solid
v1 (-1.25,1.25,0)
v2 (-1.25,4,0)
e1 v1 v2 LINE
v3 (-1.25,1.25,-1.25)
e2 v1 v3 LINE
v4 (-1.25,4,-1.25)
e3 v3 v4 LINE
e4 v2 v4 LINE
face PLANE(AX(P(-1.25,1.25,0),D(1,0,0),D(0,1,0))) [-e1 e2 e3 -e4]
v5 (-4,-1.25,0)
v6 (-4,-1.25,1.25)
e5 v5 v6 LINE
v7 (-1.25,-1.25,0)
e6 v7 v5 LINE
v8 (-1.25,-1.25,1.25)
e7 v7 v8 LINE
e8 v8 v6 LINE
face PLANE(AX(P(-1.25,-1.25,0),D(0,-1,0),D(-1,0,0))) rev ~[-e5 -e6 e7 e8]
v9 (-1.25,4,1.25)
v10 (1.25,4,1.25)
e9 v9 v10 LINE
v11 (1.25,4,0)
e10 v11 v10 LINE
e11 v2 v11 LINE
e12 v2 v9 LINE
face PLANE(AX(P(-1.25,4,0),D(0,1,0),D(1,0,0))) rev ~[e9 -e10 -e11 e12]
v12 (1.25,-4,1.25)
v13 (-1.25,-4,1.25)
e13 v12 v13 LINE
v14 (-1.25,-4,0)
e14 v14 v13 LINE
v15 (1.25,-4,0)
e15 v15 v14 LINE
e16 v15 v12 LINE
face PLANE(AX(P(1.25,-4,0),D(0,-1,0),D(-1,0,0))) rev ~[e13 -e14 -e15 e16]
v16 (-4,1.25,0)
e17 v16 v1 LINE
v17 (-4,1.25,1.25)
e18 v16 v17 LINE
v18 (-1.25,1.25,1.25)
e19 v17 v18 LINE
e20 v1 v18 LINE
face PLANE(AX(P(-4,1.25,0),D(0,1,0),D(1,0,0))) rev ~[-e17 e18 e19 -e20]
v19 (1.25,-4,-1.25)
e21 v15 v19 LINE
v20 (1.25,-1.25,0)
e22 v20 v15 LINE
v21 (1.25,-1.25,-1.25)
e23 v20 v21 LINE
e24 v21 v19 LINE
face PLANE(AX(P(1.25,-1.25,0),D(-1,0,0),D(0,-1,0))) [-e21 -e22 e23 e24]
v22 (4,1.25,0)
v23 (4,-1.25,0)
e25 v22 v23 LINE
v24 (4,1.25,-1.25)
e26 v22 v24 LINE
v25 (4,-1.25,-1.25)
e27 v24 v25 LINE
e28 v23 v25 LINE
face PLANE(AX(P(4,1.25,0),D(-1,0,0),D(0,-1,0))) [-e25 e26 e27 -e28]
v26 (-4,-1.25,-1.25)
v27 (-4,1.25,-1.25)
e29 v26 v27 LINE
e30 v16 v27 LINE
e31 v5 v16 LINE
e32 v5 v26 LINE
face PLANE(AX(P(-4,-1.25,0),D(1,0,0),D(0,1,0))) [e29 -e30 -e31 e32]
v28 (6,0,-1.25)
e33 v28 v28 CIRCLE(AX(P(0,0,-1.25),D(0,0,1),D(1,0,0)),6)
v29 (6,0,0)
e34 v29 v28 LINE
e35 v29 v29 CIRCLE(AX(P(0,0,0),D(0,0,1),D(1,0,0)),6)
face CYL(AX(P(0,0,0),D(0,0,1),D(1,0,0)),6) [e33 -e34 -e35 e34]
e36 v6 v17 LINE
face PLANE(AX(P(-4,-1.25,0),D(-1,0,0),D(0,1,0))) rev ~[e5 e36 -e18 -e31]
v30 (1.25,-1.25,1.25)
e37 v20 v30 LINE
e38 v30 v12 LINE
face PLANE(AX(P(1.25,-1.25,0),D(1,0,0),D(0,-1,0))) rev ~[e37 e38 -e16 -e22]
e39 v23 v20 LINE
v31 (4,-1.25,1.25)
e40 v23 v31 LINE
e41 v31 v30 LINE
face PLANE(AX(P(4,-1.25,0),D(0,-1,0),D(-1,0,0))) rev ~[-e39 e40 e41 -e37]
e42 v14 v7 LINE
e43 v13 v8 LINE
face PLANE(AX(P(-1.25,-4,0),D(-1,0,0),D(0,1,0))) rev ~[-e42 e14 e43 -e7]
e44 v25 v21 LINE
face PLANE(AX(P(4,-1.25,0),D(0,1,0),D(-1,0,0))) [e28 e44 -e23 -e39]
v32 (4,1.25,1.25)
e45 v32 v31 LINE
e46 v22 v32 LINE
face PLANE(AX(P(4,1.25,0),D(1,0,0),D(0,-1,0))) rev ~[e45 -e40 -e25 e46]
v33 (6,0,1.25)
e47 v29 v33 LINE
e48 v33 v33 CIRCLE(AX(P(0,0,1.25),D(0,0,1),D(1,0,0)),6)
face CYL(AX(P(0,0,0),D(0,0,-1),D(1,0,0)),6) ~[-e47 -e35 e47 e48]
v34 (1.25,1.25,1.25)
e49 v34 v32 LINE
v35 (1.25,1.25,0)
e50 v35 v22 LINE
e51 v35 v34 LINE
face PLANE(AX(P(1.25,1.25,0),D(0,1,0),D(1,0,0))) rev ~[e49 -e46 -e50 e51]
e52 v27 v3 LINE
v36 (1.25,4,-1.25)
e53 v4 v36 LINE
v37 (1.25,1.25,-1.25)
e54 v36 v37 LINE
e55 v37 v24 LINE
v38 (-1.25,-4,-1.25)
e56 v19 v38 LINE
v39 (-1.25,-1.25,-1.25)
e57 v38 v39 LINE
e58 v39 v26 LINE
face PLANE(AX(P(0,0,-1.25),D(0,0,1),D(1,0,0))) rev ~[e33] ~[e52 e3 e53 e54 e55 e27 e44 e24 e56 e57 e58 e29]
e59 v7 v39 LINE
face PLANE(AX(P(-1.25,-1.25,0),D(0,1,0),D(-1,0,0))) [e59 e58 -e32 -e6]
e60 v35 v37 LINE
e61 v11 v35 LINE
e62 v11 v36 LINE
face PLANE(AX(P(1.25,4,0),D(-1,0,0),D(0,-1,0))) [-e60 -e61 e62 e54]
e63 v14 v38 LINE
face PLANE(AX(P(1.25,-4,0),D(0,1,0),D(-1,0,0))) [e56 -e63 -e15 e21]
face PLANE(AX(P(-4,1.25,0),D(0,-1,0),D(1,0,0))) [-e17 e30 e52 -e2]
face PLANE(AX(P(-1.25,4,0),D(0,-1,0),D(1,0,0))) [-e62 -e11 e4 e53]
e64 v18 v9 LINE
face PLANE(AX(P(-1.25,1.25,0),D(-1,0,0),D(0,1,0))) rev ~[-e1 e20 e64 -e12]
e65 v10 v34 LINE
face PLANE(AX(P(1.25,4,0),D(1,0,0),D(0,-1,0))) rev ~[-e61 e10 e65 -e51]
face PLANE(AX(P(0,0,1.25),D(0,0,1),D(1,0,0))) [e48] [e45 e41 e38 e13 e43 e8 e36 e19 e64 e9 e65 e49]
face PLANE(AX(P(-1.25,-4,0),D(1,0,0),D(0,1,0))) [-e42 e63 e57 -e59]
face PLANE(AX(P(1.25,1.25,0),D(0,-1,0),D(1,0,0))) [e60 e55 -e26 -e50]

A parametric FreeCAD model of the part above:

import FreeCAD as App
import Part
import Sketcher
from FreeCAD import Vector
Q = App.Units.Quantity

doc = App.newDocument("Part")
params = doc.addObject("Spreadsheet::Sheet", "Params")
for row, (alias, value) in enumerate([
    ("sketch1_diameter", "12 mm"),
    ("sketch1_width", "2.5 mm"),
    ("pad1_length", "2.5 mm"),
], start=1):
    params.set(f"A{row}", alias)
    params.set(f"B{row}", "=" + value)
    params.setAlias(f"B{row}", alias)

body = doc.addObject("PartDesign::Body", "Body")

sketch1 = doc.addObject("Sketcher::SketchObject", "Sketch")
body.addObject(sketch1)
sketch1.AttachmentSupport = (doc.XY_Plane, [""])
sketch1.MapMode = "FlatFace"
sketch1.addGeometry([
    Part.Circle(Vector(0, 0, 0), Vector(0, 0, 1), 6),
    Part.LineSegment(Vector(-1.2, 1.2, 0), Vector(-1.2, 4, 0)),
    Part.LineSegment(Vector(-1.2, 4, 0), Vector(1.2, 4, 0)),
    Part.LineSegment(Vector(1.2, 4, 0), Vector(1.2, 1.2, 0)),
    Part.LineSegment(Vector(1.2, 1.2, 0), Vector(4, 1.2, 0)),
    Part.LineSegment(Vector(4, 1.2, 0), Vector(4, -1.2, 0)),
    Part.LineSegment(Vector(4, -1.2, 0), Vector(1.2, -1.2, 0)),
    Part.LineSegment(Vector(1.2, -1.2, 0), Vector(1.2, -4, 0)),
    Part.LineSegment(Vector(1.2, -4, 0), Vector(-1.2, -4, 0)),
    Part.LineSegment(Vector(-1.2, -4, 0), Vector(-1.2, -1.2, 0)),
    Part.LineSegment(Vector(-1.2, -1.2, 0), Vector(-4, -1.2, 0)),
    Part.LineSegment(Vector(-4, -1.2, 0), Vector(-4, 1.2, 0)),
    Part.LineSegment(Vector(-4, 1.2, 0), Vector(-1.2, 1.2, 0)),
], False)
sketch1.addConstraint([
    Sketcher.Constraint("Coincident", 1, 2, 2, 1),
    Sketcher.Constraint("Coincident", 2, 2, 3, 1),
    Sketcher.Constraint("Coincident", 3, 2, 4, 1),
    Sketcher.Constraint("Coincident", 4, 2, 5, 1),
    Sketcher.Constraint("Coincident", 5, 2, 6, 1),
    Sketcher.Constraint("Coincident", 6, 2, 7, 1),
    Sketcher.Constraint("Coincident", 7, 2, 8, 1),
    Sketcher.Constraint("Coincident", 8, 2, 9, 1),
    Sketcher.Constraint("Coincident", 9, 2, 10, 1),
    Sketcher.Constraint("Coincident", 10, 2, 11, 1),
    Sketcher.Constraint("Coincident", 11, 2, 12, 1),
    Sketcher.Constraint("Coincident", 12, 2, 1, 1),
    Sketcher.Constraint("Vertical", 1),
    Sketcher.Constraint("Horizontal", 2),
    Sketcher.Constraint("Vertical", 3),
    Sketcher.Constraint("Horizontal", 4),
    Sketcher.Constraint("Vertical", 5),
    Sketcher.Constraint("Horizontal", 6),
    Sketcher.Constraint("Vertical", 7),
    Sketcher.Constraint("Horizontal", 8),
    Sketcher.Constraint("Vertical", 9),
    Sketcher.Constraint("Horizontal", 10),
    Sketcher.Constraint("Vertical", 11),
    Sketcher.Constraint("Horizontal", 12),
    Sketcher.Constraint("Coincident", 0, 3, -1, 1),
    Sketcher.Constraint("Symmetric", 1, 2, 7, 2, -1, 1),
    Sketcher.Constraint("Symmetric", 3, 2, 9, 2, -1, 1),
    Sketcher.Constraint("Symmetric", 5, 2, 11, 2, -1, 1),
    Sketcher.Constraint("Symmetric", 6, 2, 9, 2, -2),
    Sketcher.Constraint("Equal", 12, 1),
    Sketcher.Constraint("Equal", 8, 5),
    Sketcher.Constraint("Diameter", 0, Q("12 mm")),
    Sketcher.Constraint("DistanceX", 2, 1, 2, 2, Q("2.5 mm")),
    Sketcher.Constraint("DistanceY", -1, 1, 1, 2, Q("4 mm")),
])
sketch1.setExpression("Constraints[31]", "Params.sketch1_diameter")
sketch1.setExpression("Constraints[32]", "Params.sketch1_width")
pad1 = doc.addObject("PartDesign::Pad", "Pad")
body.addObject(pad1)
pad1.Profile = sketch1
pad1.setExpression("Length", "Params.pad1_length")
pad1.Midplane = True

doc.recompute()
